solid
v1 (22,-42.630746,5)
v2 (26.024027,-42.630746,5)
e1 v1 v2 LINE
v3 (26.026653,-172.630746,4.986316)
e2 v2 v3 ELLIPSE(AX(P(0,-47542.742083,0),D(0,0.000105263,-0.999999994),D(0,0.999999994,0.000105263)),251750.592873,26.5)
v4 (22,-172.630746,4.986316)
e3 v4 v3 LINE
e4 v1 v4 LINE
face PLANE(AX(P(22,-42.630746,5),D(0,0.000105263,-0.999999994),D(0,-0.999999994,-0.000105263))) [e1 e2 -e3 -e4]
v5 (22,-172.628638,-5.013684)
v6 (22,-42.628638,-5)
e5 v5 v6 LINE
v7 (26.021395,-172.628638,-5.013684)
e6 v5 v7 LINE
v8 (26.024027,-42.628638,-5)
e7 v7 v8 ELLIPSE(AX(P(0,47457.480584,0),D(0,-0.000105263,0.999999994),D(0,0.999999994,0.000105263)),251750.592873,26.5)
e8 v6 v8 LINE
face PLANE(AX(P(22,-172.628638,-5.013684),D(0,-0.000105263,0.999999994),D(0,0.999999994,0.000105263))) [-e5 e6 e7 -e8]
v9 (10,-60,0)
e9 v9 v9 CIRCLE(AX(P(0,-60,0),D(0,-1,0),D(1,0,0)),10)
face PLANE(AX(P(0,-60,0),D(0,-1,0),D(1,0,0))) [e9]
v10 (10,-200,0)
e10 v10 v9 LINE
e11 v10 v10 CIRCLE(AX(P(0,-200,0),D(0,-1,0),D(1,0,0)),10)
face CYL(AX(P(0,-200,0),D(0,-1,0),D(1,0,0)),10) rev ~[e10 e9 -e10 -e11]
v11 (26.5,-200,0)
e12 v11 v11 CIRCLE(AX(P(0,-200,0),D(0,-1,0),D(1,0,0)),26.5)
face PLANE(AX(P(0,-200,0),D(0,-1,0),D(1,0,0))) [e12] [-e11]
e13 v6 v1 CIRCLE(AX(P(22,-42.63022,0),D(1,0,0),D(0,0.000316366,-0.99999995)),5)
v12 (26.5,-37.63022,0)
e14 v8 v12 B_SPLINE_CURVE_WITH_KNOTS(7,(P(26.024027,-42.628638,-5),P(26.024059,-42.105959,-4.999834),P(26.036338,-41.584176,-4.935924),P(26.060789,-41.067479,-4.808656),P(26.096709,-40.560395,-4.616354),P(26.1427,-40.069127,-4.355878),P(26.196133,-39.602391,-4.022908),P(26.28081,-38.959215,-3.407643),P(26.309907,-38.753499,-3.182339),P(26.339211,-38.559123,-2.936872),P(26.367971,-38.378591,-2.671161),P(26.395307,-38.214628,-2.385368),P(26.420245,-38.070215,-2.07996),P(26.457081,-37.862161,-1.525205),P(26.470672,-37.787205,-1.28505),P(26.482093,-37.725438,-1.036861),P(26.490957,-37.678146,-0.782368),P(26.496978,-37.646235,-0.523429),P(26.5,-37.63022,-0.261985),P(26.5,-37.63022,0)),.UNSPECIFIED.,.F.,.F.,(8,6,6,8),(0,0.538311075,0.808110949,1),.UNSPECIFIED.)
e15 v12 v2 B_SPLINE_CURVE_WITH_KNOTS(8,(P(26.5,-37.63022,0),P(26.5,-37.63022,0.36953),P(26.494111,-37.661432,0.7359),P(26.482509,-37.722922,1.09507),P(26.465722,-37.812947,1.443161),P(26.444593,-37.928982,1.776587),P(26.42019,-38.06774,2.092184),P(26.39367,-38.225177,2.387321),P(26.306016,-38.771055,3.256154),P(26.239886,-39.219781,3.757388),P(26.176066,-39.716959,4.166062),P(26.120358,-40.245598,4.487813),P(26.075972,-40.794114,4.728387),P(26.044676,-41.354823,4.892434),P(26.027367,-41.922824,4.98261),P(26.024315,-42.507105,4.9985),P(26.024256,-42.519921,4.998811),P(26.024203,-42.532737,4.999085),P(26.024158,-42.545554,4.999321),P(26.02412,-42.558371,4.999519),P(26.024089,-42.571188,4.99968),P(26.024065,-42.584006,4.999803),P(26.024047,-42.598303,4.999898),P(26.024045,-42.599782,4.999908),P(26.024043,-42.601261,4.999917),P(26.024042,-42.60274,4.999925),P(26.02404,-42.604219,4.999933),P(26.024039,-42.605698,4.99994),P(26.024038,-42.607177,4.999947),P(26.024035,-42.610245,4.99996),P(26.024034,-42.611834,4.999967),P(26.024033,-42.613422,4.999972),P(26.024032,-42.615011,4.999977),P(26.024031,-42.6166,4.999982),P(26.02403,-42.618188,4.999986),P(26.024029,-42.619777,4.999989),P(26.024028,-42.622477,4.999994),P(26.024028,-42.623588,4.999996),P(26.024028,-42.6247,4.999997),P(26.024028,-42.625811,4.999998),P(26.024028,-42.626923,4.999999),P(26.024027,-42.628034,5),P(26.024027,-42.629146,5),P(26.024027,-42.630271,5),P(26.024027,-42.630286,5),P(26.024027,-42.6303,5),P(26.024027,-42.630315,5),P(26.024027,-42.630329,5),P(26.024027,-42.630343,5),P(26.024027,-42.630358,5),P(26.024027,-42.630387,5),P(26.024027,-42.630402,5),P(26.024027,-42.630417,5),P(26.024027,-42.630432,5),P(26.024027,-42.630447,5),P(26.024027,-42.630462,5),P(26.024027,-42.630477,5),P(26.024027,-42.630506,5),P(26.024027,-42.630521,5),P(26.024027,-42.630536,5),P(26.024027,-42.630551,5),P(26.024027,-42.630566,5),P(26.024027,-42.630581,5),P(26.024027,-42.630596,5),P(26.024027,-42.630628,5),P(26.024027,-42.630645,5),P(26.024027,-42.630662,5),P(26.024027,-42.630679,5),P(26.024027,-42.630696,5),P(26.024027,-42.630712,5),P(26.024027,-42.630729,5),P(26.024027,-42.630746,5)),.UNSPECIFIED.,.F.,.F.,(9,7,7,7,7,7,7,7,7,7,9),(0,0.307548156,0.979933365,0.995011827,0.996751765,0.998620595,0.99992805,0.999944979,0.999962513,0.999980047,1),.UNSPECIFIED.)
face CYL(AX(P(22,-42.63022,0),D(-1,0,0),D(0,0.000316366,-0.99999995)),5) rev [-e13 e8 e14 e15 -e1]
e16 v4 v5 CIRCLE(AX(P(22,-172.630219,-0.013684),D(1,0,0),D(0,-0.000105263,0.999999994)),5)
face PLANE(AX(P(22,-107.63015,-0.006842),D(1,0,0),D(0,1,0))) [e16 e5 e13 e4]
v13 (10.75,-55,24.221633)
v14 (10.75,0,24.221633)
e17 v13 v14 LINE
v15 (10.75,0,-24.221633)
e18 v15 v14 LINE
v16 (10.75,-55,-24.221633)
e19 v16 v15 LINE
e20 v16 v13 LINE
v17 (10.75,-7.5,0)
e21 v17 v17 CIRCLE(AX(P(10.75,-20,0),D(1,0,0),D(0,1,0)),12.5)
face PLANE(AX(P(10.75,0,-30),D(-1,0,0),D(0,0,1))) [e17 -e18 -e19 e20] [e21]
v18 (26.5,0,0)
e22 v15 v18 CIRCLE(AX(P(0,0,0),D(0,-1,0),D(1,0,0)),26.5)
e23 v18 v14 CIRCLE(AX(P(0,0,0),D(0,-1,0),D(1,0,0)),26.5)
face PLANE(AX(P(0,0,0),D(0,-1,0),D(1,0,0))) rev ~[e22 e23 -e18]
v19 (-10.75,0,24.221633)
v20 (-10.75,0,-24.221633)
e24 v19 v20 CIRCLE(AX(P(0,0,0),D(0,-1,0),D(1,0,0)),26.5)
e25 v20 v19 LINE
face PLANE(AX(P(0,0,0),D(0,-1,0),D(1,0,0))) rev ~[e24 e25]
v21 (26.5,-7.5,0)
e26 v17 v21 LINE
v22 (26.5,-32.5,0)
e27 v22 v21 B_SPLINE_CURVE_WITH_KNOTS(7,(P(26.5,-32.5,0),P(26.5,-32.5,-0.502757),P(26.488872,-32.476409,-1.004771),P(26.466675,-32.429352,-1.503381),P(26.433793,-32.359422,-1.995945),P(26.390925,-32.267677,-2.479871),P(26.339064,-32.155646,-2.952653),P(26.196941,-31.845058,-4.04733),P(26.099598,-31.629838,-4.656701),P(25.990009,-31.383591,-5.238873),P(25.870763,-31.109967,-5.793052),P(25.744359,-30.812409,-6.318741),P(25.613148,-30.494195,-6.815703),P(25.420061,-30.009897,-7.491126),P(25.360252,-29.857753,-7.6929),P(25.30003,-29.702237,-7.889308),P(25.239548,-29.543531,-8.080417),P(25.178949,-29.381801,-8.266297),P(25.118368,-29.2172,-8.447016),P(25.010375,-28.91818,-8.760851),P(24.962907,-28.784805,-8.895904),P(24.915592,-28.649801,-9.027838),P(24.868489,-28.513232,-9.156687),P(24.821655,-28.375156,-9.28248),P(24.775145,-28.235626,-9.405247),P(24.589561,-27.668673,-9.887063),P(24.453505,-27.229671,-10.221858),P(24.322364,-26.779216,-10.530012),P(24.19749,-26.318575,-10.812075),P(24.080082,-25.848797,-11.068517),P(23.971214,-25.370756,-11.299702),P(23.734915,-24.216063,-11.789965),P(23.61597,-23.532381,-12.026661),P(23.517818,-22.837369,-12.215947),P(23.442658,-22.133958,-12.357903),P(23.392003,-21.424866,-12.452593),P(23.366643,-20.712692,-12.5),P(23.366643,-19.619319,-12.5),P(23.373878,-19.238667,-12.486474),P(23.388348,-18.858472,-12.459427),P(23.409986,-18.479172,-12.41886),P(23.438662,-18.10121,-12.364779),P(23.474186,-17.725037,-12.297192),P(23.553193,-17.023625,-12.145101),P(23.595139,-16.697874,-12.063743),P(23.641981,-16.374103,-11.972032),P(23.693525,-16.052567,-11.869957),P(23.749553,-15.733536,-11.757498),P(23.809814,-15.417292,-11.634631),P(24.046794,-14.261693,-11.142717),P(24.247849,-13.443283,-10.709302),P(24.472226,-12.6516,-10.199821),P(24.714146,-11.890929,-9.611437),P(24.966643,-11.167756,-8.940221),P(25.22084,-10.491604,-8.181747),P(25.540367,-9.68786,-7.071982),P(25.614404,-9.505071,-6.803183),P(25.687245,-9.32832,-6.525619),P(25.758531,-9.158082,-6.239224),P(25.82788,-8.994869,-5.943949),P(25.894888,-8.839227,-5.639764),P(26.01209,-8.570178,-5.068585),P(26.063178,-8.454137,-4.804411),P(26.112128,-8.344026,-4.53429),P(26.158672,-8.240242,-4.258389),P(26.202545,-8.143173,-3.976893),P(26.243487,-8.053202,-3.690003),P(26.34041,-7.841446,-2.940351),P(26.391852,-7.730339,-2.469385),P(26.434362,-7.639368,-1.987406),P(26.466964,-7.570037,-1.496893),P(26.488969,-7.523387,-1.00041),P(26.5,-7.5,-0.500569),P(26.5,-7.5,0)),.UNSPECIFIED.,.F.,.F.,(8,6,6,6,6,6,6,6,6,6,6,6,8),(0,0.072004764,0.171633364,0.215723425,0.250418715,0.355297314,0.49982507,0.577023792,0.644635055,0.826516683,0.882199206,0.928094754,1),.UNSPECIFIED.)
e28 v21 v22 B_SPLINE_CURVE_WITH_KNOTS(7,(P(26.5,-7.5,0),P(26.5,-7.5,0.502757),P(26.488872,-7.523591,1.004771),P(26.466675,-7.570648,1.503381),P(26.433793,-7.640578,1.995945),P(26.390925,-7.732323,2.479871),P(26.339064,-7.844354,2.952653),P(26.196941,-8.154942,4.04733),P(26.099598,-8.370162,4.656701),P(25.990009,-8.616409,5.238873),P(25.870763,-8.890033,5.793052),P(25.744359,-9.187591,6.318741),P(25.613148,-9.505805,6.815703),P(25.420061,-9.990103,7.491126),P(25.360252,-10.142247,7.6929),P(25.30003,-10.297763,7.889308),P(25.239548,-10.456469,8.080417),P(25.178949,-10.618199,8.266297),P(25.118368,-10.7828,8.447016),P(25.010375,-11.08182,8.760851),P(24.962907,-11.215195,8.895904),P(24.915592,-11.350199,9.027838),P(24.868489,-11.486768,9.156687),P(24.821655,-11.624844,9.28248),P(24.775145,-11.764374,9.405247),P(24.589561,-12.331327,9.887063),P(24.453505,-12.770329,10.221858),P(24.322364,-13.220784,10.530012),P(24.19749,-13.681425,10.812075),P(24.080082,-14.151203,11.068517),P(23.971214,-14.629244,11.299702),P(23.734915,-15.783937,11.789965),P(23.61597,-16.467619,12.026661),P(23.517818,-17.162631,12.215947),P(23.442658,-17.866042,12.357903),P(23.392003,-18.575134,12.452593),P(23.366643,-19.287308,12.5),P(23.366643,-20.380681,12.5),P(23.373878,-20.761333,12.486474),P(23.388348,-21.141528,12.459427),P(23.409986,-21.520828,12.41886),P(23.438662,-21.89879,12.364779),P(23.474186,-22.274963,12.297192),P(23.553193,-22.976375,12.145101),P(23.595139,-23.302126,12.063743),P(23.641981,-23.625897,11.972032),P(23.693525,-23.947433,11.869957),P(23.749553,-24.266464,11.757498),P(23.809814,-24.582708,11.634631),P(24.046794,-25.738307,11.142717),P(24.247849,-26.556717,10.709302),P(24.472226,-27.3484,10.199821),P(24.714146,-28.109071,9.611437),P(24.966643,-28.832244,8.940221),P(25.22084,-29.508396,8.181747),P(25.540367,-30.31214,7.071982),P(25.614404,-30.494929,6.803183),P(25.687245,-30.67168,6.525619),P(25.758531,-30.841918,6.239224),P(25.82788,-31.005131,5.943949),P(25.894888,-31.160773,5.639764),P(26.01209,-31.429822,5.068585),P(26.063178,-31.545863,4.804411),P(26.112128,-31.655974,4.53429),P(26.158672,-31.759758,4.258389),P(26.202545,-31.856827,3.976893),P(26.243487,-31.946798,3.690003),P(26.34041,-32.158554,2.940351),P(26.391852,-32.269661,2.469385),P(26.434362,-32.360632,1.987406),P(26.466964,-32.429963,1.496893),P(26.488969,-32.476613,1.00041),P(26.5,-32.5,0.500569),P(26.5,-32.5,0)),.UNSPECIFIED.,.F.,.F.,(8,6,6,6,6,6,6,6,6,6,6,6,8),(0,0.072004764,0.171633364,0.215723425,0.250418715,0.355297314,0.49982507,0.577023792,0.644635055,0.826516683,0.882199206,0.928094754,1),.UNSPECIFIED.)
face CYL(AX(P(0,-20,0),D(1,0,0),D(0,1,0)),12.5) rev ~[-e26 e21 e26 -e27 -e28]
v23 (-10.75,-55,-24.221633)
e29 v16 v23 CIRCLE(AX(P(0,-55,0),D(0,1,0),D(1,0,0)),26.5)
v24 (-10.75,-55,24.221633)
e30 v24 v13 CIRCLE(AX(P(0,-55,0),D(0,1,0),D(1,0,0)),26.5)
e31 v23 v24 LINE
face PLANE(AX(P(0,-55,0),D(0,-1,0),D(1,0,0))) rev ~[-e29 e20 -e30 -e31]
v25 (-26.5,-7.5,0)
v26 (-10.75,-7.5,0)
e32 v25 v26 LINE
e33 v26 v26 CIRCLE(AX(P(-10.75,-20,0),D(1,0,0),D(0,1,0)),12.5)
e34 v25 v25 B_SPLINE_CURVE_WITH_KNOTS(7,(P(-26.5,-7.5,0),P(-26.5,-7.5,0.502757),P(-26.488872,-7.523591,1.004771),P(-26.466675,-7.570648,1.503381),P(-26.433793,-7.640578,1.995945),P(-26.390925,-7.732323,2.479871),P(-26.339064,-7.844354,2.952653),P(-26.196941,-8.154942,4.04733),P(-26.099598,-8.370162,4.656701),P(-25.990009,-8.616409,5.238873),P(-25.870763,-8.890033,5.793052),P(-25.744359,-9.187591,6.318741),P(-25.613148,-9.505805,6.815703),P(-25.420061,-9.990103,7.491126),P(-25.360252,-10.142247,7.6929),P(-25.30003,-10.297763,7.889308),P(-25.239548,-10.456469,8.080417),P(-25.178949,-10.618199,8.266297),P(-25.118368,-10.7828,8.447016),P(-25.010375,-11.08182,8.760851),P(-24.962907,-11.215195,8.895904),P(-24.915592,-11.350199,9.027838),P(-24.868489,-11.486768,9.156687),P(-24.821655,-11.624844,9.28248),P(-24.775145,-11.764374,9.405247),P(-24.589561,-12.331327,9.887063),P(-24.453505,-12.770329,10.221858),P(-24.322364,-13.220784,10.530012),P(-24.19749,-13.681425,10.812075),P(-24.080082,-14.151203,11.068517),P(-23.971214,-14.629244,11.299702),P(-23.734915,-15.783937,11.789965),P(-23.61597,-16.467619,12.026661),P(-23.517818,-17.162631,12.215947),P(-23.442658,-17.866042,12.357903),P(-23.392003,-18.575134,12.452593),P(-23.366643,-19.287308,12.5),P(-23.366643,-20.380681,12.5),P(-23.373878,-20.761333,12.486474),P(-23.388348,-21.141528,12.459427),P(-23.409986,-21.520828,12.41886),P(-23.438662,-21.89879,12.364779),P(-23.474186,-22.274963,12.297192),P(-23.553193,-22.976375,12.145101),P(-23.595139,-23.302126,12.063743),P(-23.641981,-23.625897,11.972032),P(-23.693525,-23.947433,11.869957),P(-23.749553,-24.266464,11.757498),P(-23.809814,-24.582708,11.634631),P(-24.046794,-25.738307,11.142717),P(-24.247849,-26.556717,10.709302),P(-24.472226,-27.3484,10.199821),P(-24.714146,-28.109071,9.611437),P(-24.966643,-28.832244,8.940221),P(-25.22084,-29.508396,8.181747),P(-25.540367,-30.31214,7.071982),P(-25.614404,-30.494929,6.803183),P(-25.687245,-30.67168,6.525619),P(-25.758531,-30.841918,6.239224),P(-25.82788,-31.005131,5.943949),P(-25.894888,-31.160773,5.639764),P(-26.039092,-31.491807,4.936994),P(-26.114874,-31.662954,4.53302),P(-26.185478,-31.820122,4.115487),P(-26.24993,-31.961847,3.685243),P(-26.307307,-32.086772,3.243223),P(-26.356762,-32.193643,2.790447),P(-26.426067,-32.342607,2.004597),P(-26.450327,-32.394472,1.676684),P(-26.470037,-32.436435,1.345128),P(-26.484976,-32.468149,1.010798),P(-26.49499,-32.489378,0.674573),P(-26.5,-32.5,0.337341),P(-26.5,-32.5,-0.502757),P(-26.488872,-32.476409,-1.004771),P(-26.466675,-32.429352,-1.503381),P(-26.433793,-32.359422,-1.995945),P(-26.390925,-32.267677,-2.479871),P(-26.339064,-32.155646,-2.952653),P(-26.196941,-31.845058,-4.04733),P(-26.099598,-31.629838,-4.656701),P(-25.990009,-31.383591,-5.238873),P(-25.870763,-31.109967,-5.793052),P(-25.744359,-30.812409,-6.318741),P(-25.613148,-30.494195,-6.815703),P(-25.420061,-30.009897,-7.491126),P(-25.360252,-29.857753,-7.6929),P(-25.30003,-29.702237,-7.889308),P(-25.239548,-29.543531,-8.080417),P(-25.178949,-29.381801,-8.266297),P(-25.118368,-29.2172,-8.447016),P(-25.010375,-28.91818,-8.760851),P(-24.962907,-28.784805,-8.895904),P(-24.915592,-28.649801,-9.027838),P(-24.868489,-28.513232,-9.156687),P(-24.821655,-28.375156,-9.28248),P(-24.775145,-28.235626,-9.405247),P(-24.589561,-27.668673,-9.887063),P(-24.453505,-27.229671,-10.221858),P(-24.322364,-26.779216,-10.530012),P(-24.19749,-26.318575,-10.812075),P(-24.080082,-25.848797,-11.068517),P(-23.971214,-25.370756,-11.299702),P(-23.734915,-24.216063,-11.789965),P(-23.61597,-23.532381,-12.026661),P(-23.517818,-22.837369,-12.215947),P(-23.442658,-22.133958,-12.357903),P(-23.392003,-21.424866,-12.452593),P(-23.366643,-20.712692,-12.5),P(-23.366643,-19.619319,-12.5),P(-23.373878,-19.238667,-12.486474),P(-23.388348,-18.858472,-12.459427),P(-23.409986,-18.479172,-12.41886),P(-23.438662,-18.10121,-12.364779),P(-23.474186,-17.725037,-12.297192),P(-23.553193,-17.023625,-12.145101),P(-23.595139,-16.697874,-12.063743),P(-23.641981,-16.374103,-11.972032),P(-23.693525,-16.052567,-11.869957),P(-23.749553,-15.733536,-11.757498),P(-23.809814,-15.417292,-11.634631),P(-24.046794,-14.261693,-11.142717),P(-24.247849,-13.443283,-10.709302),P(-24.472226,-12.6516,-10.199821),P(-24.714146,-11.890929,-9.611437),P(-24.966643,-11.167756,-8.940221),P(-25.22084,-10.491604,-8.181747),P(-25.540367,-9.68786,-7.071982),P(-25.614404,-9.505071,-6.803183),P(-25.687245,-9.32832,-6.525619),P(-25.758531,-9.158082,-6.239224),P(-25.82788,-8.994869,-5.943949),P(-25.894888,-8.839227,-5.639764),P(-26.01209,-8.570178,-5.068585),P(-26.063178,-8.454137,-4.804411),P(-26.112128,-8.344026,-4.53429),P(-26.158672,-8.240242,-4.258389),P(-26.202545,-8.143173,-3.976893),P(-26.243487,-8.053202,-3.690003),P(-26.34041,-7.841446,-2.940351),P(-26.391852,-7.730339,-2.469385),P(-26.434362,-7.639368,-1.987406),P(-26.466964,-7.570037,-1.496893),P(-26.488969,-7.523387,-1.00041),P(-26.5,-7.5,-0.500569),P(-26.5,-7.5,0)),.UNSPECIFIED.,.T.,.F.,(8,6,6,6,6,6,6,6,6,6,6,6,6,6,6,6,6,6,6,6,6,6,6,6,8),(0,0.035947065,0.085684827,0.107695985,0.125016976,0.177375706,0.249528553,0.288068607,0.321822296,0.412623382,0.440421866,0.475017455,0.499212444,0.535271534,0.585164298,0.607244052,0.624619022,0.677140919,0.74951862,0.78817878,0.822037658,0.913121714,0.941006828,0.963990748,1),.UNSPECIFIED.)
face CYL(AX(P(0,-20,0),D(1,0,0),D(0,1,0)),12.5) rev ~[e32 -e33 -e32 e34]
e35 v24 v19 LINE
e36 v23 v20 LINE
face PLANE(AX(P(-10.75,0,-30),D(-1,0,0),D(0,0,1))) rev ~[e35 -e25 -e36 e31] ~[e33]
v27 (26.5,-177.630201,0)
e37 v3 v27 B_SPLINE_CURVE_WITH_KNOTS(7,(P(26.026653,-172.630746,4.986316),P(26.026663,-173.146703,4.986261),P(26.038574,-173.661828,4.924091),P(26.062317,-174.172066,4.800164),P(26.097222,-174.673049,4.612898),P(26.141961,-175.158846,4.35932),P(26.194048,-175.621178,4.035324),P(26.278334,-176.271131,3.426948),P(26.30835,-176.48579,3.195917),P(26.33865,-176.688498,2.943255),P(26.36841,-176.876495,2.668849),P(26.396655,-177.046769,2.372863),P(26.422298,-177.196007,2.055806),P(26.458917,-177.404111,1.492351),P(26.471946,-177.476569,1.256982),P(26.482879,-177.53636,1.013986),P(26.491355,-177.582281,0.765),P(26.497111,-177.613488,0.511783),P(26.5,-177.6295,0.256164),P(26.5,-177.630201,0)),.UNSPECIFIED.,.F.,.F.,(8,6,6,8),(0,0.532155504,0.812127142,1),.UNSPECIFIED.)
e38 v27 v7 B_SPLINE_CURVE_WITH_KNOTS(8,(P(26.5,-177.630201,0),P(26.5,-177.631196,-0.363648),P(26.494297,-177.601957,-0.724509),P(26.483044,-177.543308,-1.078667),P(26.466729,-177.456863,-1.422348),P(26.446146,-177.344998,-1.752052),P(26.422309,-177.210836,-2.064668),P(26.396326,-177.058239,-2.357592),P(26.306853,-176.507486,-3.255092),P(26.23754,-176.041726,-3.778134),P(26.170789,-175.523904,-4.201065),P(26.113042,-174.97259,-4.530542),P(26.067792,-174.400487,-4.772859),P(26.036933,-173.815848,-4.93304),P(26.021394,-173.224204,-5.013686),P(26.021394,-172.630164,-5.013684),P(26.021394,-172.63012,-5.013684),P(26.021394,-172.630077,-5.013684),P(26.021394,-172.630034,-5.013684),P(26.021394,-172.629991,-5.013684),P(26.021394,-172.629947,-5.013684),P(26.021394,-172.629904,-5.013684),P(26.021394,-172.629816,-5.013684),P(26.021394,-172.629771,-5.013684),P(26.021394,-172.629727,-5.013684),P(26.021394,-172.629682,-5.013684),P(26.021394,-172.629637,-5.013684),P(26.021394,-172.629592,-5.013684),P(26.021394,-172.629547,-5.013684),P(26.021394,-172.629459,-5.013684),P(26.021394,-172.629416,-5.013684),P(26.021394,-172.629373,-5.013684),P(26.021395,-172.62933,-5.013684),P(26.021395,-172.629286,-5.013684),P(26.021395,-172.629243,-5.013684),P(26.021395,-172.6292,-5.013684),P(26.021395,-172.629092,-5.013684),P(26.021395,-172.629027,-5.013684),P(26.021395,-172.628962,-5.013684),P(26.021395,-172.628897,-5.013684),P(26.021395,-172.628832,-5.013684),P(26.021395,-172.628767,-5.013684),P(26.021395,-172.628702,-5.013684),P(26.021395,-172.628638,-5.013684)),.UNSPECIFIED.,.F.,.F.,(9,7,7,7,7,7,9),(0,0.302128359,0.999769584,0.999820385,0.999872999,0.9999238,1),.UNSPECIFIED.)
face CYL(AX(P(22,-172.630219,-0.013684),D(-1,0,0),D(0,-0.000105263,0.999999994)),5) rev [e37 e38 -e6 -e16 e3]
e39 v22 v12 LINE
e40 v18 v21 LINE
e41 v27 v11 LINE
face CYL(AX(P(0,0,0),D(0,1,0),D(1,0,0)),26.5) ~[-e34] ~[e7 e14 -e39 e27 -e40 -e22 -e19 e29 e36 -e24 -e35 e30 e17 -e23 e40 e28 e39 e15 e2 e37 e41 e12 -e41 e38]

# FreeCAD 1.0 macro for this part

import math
import FreeCAD as App
import Part
import Sketcher


def add_polygon(sketch, points):
    """Adds a closed chain of lines whose ends are joined by coincident constraints."""
    first, n = sketch.GeometryCount, len(points)
    for a, b in zip(points, points[1:] + points[:1]):
        sketch.addGeometry(Part.LineSegment(App.Vector(*a, 0), App.Vector(*b, 0)), False)
    for i in range(n):
        sketch.addConstraint(Sketcher.Constraint("Coincident", first + i, 2, first + (i + 1) % n, 1))

doc = App.newDocument("Part")
params = doc.addObject("Spreadsheet::Sheet", "Params")
for row, (alias, value) in enumerate([
    ("sketch1_diameter", "53 mm"),
    ("pad1_length", "200 mm"),
    ("sketch2_diameter", "25 mm"),
    ("pocket1_length", "60 mm"),
    ("sketch3_height", "60 mm"),
    ("sketch3_width", "21.5 mm"),
    ("pocket2_length", "55 mm"),
    ("sketch4_radius", "5 mm"),
    ("sketch4_length", "130 mm"),
    ("pocket3_length", "10 mm"),
    ("sketch5_diameter", "20 mm"),
    ("pocket4_length", "140 mm"),
], start=1):
    params.set(f"A{row}", alias)
    params.set(f"B{row}", "=" + value)
    params.setAlias(f"B{row}", alias)

body = doc.addObject("PartDesign::Body", "Body")

sketch1 = body.newObject("Sketcher::SketchObject", "Sketch")
sketch1.AttachmentSupport = (doc.getObject("XZ_Plane"), [""])
sketch1.MapMode = "FlatFace"
sketch1.addGeometry(Part.Circle(App.Vector(0, 0, 0), App.Vector(0, 0, 1), 26), False)
sketch1.addConstraint([
    Sketcher.Constraint("Coincident", 0, 3, -1, 1),
    Sketcher.Constraint("Diameter", 0, 53.0),
])
sketch1.setExpression("Constraints[1]", "Params.sketch1_diameter")
pad1 = body.newObject("PartDesign::Pad", "Pad")
pad1.Profile = sketch1
pad1.setExpression("Length", "Params.pad1_length")

sketch2 = body.newObject("Sketcher::SketchObject", "Sketch001")
sketch2.AttachmentSupport = (doc.getObject("YZ_Plane"), [""])
sketch2.MapMode = "FlatFace"
sketch2.addGeometry(Part.Circle(App.Vector(-20, 0, 0), App.Vector(0, 0, 1), 12), False)
sketch2.addConstraint([
    Sketcher.Constraint("PointOnObject", 0, 3, -1),
    Sketcher.Constraint("Diameter", 0, 25.0),
    Sketcher.Constraint("DistanceX", 0, 3, -1, 1, 20.0),
])
sketch2.setExpression("Constraints[1]", "Params.sketch2_diameter")
pocket1 = body.newObject("PartDesign::Pocket", "Pocket")
pocket1.Profile = sketch2
pocket1.setExpression("Length", "Params.pocket1_length")
pocket1.Midplane = True

sketch3 = body.newObject("Sketcher::SketchObject", "Sketch002")
sketch3.AttachmentSupport = (doc.getObject("XZ_Plane"), [""])
sketch3.MapMode = "FlatFace"
add_polygon(sketch3, [(-11, 30), (-11, -30), (11, -30), (11, 30)])
sketch3.addConstraint([
    Sketcher.Constraint("Vertical", 0),
    Sketcher.Constraint("Horizontal", 1),
    Sketcher.Constraint("Vertical", 2),
    Sketcher.Constraint("Horizontal", 3),
    Sketcher.Constraint("Symmetric", 0, 2, 2, 2, -1, 1),
    Sketcher.Constraint("DistanceY", 0, 2, 0, 1, 60.0),
    Sketcher.Constraint("DistanceX", 1, 1, 1, 2, 21.5),
])
sketch3.setExpression("Constraints[9]", "Params.sketch3_height")
sketch3.setExpression("Constraints[10]", "Params.sketch3_width")
pocket2 = body.newObject("PartDesign::Pocket", "Pocket001")
pocket2.Profile = sketch3
pocket2.setExpression("Length", "Params.pocket2_length")
pocket2.Reversed = True

sketch4 = body.newObject("Sketcher::SketchObject", "Sketch003")
sketch4.AttachmentSupport = (doc.getObject("YZ_Plane"), [""])
sketch4.MapMode = "FlatFace"
sketch4.AttachmentOffset = App.Placement(App.Vector(0, 0, 22), App.Rotation())
sketch4.addGeometry([
    Part.LineSegment(App.Vector(-43, 5, 0), App.Vector(-173, 5, 0)),
    Part.ArcOfCircle(Part.Circle(App.Vector(-173, 0, 0), App.Vector(0, 0, 1), 5), math.radians(90), math.radians(270)),
    Part.LineSegment(App.Vector(-173, -5, 0), App.Vector(-43, -5, 0)),
    Part.ArcOfCircle(Part.Circle(App.Vector(-43, 0, 0), App.Vector(0, 0, 1), 5), math.radians(-90), math.radians(90)),
], False)
sketch4.addConstraint([
    Sketcher.Constraint("Tangent", 0, 2, 1, 1),
    Sketcher.Constraint("Coincident", 1, 2, 2, 1),
    Sketcher.Constraint("Coincident", 2, 2, 3, 1),
    Sketcher.Constraint("Tangent", 3, 2, 0, 1),
    Sketcher.Constraint("Equal", 1, 3),
    Sketcher.Constraint("PointOnObject", 3, 3, -1),
    Sketcher.Constraint("Equal", 0, 2),
    Sketcher.Constraint("Radius", 1, 5.0),
    Sketcher.Constraint("Distance", 0, 130.0),
    Sketcher.Constraint("DistanceX", 1, 3, -1, 1, 172.630219),
    Sketcher.Constraint("DistanceX", 2, 2, -1, 1, 42.628638),
    Sketcher.Constraint("DistanceX", 0, 2, 1, 2, 0.002108),
])
sketch4.setExpression("Constraints[7]", "Params.sketch4_radius")
sketch4.setExpression("Constraints[8]", "Params.sketch4_length")
pocket3 = body.newObject("PartDesign::Pocket", "Pocket002")
pocket3.Profile = sketch4
pocket3.setExpression("Length", "Params.pocket3_length")
pocket3.Reversed = True

sketch5 = body.newObject("Sketcher::SketchObject", "Sketch004")
sketch5.AttachmentSupport = (doc.getObject("XZ_Plane"), [""])
sketch5.MapMode = "FlatFace"
sketch5.AttachmentOffset = App.Placement(App.Vector(0, 0, 200), App.Rotation())
sketch5.addGeometry(Part.Circle(App.Vector(0, 0, 0), App.Vector(0, 0, 1), 10), False)
sketch5.addConstraint([
    Sketcher.Constraint("Coincident", 0, 3, -1, 1),
    Sketcher.Constraint("Diameter", 0, 20.0),
])
sketch5.setExpression("Constraints[1]", "Params.sketch5_diameter")
pocket4 = body.newObject("PartDesign::Pocket", "Pocket003")
pocket4.Profile = sketch5
pocket4.setExpression("Length", "Params.pocket4_length")

doc.recompute()
